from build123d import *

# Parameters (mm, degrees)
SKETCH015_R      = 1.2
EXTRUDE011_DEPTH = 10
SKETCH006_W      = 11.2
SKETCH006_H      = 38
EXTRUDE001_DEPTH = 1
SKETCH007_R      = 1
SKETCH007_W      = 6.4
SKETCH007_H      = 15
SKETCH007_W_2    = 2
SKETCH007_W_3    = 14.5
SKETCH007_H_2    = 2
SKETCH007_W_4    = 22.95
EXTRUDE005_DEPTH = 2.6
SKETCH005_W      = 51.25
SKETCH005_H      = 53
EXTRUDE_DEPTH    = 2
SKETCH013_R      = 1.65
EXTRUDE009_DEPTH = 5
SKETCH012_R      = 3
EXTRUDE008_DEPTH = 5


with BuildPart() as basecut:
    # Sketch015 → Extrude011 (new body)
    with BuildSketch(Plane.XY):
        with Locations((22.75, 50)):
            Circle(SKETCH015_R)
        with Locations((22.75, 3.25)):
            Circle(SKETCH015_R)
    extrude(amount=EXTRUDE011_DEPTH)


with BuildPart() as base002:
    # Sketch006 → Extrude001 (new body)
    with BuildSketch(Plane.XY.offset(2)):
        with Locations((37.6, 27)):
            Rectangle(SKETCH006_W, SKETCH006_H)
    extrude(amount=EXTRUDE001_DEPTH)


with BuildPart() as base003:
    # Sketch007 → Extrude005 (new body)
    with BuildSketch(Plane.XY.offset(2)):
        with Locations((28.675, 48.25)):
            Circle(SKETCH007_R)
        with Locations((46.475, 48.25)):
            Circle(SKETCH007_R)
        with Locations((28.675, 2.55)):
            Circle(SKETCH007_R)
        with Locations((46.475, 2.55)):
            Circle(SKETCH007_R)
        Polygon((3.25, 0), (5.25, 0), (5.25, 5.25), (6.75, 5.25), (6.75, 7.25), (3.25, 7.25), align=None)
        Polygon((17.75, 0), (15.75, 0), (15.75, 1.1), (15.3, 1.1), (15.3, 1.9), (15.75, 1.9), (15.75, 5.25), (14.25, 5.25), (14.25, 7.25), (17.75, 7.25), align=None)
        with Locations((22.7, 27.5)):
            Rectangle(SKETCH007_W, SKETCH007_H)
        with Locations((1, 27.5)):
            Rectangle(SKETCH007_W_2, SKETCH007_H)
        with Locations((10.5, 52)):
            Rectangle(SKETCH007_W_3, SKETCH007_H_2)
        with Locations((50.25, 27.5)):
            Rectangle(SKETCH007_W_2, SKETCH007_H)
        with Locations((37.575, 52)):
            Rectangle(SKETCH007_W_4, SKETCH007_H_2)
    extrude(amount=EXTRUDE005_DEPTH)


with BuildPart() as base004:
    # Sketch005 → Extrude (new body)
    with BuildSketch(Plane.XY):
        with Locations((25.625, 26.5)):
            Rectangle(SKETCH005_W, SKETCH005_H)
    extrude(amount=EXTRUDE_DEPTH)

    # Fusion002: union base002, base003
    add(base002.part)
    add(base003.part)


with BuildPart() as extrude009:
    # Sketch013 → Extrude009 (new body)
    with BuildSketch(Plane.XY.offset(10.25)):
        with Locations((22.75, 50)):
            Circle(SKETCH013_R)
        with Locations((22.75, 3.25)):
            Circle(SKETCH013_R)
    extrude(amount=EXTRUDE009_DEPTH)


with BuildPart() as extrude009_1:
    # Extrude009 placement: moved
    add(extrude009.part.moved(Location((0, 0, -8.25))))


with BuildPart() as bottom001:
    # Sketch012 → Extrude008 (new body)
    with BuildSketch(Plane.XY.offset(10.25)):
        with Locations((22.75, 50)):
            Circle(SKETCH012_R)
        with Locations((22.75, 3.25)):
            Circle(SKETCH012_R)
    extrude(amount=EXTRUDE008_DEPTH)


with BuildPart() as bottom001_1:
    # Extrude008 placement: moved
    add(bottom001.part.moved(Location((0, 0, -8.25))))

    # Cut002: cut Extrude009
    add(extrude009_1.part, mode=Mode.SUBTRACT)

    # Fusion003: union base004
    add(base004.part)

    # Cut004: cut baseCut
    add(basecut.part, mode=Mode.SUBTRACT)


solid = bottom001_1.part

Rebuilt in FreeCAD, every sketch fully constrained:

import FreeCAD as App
import Part
import Sketcher
from FreeCAD import Vector

doc = App.newDocument("Part")
params = doc.addObject("Spreadsheet::Sheet", "Params")
for row, (alias, value) in enumerate([
    ("sketch1_diameter", "2.4 mm"),
    ("pad1_length", "10 mm"),
    ("sketch2_height", "38 mm"),
    ("sketch2_width", "11.2 mm"),
    ("pad2_length", "1 mm"),
    ("sketch3_diameter", "2 mm"),
    ("sketch3_width", "2 mm"),
    ("sketch3_height", "15 mm"),
    ("sketch3_width2", "1.5 mm"),
    ("sketch3_width3", "6.4 mm"),
    ("pad3_length", "2.6 mm"),
    ("sketch4_height", "53 mm"),
    ("sketch4_width", "51.25 mm"),
    ("pad4_length", "2 mm"),
    ("sketch5_diameter", "3.3 mm"),
    ("pad5_length", "5 mm"),
    ("sketch6_diameter", "6 mm"),
    ("pad6_length", "5 mm"),
], start=1):
    params.set(f"A{row}", alias)
    params.set(f"B{row}", "=" + value)
    params.setAlias(f"B{row}", alias)

body = doc.addObject("PartDesign::Body", "Body")
body.AllowCompound = True

# Sketch on XY plane
sketch1 = body.newObject("Sketcher::SketchObject", "Sketch")
sketch1.AttachmentSupport = (doc.getObject("XY_Plane"), [""])
sketch1.MapMode = "FlatFace"
sketch1.addGeometry([
    Part.Circle(Vector(22.75, 50, 0), Vector(0, 0, 1), 1.2),
    Part.Circle(Vector(22.75, 3.25, 0), Vector(0, 0, 1), 1.2),
], False)
sketch1.addConstraint([
    Sketcher.Constraint("Equal", 0, 1),
    Sketcher.Constraint("Vertical", 0, 3, 1, 3),
    Sketcher.Constraint("Diameter", 0, 2.4),
    Sketcher.Constraint("DistanceY", -1, 1, 0, 3, 50.0),
    Sketcher.Constraint("DistanceX", -1, 1, 0, 3, 22.75),
    Sketcher.Constraint("DistanceY", -1, 1, 1, 3, 3.25),
])
sketch1.setExpression("Constraints[2]", "Params.sketch1_diameter")
pad1 = body.newObject("PartDesign::Pad", "Pad")
pad1.Profile = sketch1
pad1.setExpression("Length", "Params.pad1_length")
body2 = doc.addObject("PartDesign::Body", "Body001")

# Sketch on XY plane
sketch2 = body2.newObject("Sketcher::SketchObject", "Sketch001")
sketch2.AttachmentSupport = (doc.getObject("XY_Plane001"), [""])
sketch2.MapMode = "FlatFace"
sketch2.AttachmentOffset = App.Placement(Vector(0, 0, 2), App.Rotation())
sketch2.addGeometry([
    Part.LineSegment(Vector(32, 46, 0), Vector(32, 8, 0)),
    Part.LineSegment(Vector(32, 8, 0), Vector(43.2, 8, 0)),
    Part.LineSegment(Vector(43.2, 8, 0), Vector(43.2, 46, 0)),
    Part.LineSegment(Vector(43.2, 46, 0), Vector(32, 46, 0)),
], False)
sketch2.addConstraint([
    Sketcher.Constraint("Coincident", 0, 2, 1, 1),
    Sketcher.Constraint("Coincident", 1, 2, 2, 1),
    Sketcher.Constraint("Coincident", 2, 2, 3, 1),
    Sketcher.Constraint("Coincident", 3, 2, 0, 1),
    Sketcher.Constraint("Vertical", 0),
    Sketcher.Constraint("Horizontal", 1),
    Sketcher.Constraint("Vertical", 2),
    Sketcher.Constraint("Horizontal", 3),
    Sketcher.Constraint("DistanceY", 0, 2, 0, 1, 38.0),
    Sketcher.Constraint("DistanceX", 1, 1, 1, 2, 11.2),
    Sketcher.Constraint("DistanceX", -1, 1, 0, 2, 32.0),
    Sketcher.Constraint("DistanceY", -1, 1, 0, 2, 8.0),
])
sketch2.setExpression("Constraints[8]", "Params.sketch2_height")
sketch2.setExpression("Constraints[9]", "Params.sketch2_width")
pad2 = body2.newObject("PartDesign::Pad", "Pad001")
pad2.Profile = sketch2
pad2.setExpression("Length", "Params.pad2_length")
body3 = doc.addObject("PartDesign::Body", "Body002")
body3.AllowCompound = True

# Sketch on XY plane
sketch3 = body3.newObject("Sketcher::SketchObject", "Sketch002")
sketch3.AttachmentSupport = (doc.getObject("XY_Plane002"), [""])
sketch3.MapMode = "FlatFace"
sketch3.AttachmentOffset = App.Placement(Vector(0, 0, 2), App.Rotation())
sketch3.addGeometry([
    Part.Circle(Vector(28.675, 48.25, 0), Vector(0, 0, 1), 1),  # 0
    Part.Circle(Vector(46.475, 48.25, 0), Vector(0, 0, 1), 1),  # 1
    Part.Circle(Vector(28.675, 2.55, 0), Vector(0, 0, 1), 1),  # 2
    Part.Circle(Vector(46.475, 2.55, 0), Vector(0, 0, 1), 1),  # 3
    Part.LineSegment(Vector(3.25, 0, 0), Vector(5.25, 0, 0)),  # 4
    Part.LineSegment(Vector(5.25, 0, 0), Vector(5.25, 5.25, 0)),  # 5
    Part.LineSegment(Vector(5.25, 5.25, 0), Vector(6.75, 5.25, 0)),  # 6
    Part.LineSegment(Vector(6.75, 5.25, 0), Vector(6.75, 7.25, 0)),  # 7
    Part.LineSegment(Vector(6.75, 7.25, 0), Vector(3.25, 7.25, 0)),  # 8
    Part.LineSegment(Vector(3.25, 7.25, 0), Vector(3.25, 0, 0)),  # 9
    Part.LineSegment(Vector(15.75, 0, 0), Vector(17.75, 0, 0)),  # 10
    Part.LineSegment(Vector(17.75, 0, 0), Vector(17.75, 7.25, 0)),  # 11
    Part.LineSegment(Vector(17.75, 7.25, 0), Vector(14.25, 7.25, 0)),  # 12
    Part.LineSegment(Vector(14.25, 7.25, 0), Vector(14.25, 5.25, 0)),  # 13
    Part.LineSegment(Vector(14.25, 5.25, 0), Vector(15.75, 5.25, 0)),  # 14
    Part.LineSegment(Vector(15.75, 5.25, 0), Vector(15.75, 1.9, 0)),  # 15
    Part.LineSegment(Vector(15.75, 1.9, 0), Vector(15.3, 1.9, 0)),  # 16
    Part.LineSegment(Vector(15.3, 1.9, 0), Vector(15.3, 1.1, 0)),  # 17
    Part.LineSegment(Vector(15.3, 1.1, 0), Vector(15.75, 1.1, 0)),  # 18
    Part.LineSegment(Vector(15.75, 1.1, 0), Vector(15.75, 0, 0)),  # 19
    Part.LineSegment(Vector(19.5, 35, 0), Vector(19.5, 20, 0)),  # 20
    Part.LineSegment(Vector(19.5, 20, 0), Vector(25.9, 20, 0)),  # 21
    Part.LineSegment(Vector(25.9, 20, 0), Vector(25.9, 35, 0)),  # 22
    Part.LineSegment(Vector(25.9, 35, 0), Vector(19.5, 35, 0)),  # 23
    Part.LineSegment(Vector(0, 35, 0), Vector(0, 20, 0)),  # 24
    Part.LineSegment(Vector(0, 20, 0), Vector(2, 20, 0)),  # 25
    Part.LineSegment(Vector(2, 20, 0), Vector(2, 35, 0)),  # 26
    Part.LineSegment(Vector(2, 35, 0), Vector(0, 35, 0)),  # 27
    Part.LineSegment(Vector(3.25, 53, 0), Vector(3.25, 51, 0)),  # 28
    Part.LineSegment(Vector(3.25, 51, 0), Vector(17.75, 51, 0)),  # 29
    Part.LineSegment(Vector(17.75, 51, 0), Vector(17.75, 53, 0)),  # 30
    Part.LineSegment(Vector(17.75, 53, 0), Vector(3.25, 53, 0)),  # 31
    Part.LineSegment(Vector(49.25, 35, 0), Vector(49.25, 20, 0)),  # 32
    Part.LineSegment(Vector(49.25, 20, 0), Vector(51.25, 20, 0)),  # 33
    Part.LineSegment(Vector(51.25, 20, 0), Vector(51.25, 35, 0)),  # 34
    Part.LineSegment(Vector(51.25, 35, 0), Vector(49.25, 35, 0)),  # 35
    Part.LineSegment(Vector(26.1, 53, 0), Vector(26.1, 51, 0)),  # 36
    Part.LineSegment(Vector(26.1, 51, 0), Vector(49.05, 51, 0)),  # 37
    Part.LineSegment(Vector(49.05, 51, 0), Vector(49.05, 53, 0)),  # 38
    Part.LineSegment(Vector(49.05, 53, 0), Vector(26.1, 53, 0)),  # 39
], False)
sketch3.addConstraint([
    Sketcher.Constraint("Coincident", 4, 2, 5, 1),
    Sketcher.Constraint("Coincident", 5, 2, 6, 1),
    Sketcher.Constraint("Coincident", 6, 2, 7, 1),
    Sketcher.Constraint("Coincident", 7, 2, 8, 1),
    Sketcher.Constraint("Coincident", 8, 2, 9, 1),
    Sketcher.Constraint("Coincident", 9, 2, 4, 1),
    Sketcher.Constraint("Coincident", 10, 2, 11, 1),
    Sketcher.Constraint("Coincident", 11, 2, 12, 1),
    Sketcher.Constraint("Coincident", 12, 2, 13, 1),
    Sketcher.Constraint("Coincident", 13, 2, 14, 1),
    Sketcher.Constraint("Coincident", 14, 2, 15, 1),
    Sketcher.Constraint("Coincident", 15, 2, 16, 1),
    Sketcher.Constraint("Coincident", 16, 2, 17, 1),
    Sketcher.Constraint("Coincident", 17, 2, 18, 1),
    Sketcher.Constraint("Coincident", 18, 2, 19, 1),
    Sketcher.Constraint("Coincident", 19, 2, 10, 1),
    Sketcher.Constraint("Coincident", 20, 2, 21, 1),
    Sketcher.Constraint("Coincident", 21, 2, 22, 1),
    Sketcher.Constraint("Coincident", 22, 2, 23, 1),
    Sketcher.Constraint("Coincident", 23, 2, 20, 1),
    Sketcher.Constraint("Coincident", 24, 2, 25, 1),
    Sketcher.Constraint("Coincident", 25, 2, 26, 1),
    Sketcher.Constraint("Coincident", 26, 2, 27, 1),
    Sketcher.Constraint("Coincident", 27, 2, 24, 1),
    Sketcher.Constraint("Coincident", 28, 2, 29, 1),
    Sketcher.Constraint("Coincident", 29, 2, 30, 1),
    Sketcher.Constraint("Coincident", 30, 2, 31, 1),
    Sketcher.Constraint("Coincident", 31, 2, 28, 1),
    Sketcher.Constraint("Coincident", 32, 2, 33, 1),
    Sketcher.Constraint("Coincident", 33, 2, 34, 1),
    Sketcher.Constraint("Coincident", 34, 2, 35, 1),
    Sketcher.Constraint("Coincident", 35, 2, 32, 1),
    Sketcher.Constraint("Coincident", 36, 2, 37, 1),
    Sketcher.Constraint("Coincident", 37, 2, 38, 1),
    Sketcher.Constraint("Coincident", 38, 2, 39, 1),
    Sketcher.Constraint("Coincident", 39, 2, 36, 1),
    Sketcher.Constraint("Horizontal", 4),
    Sketcher.Constraint("Vertical", 5),
    Sketcher.Constraint("Horizontal", 6),
    Sketcher.Constraint("Vertical", 7),
    Sketcher.Constraint("Horizontal", 8),
    Sketcher.Constraint("Vertical", 9),
    Sketcher.Constraint("Horizontal", 10),
    Sketcher.Constraint("Vertical", 11),
    Sketcher.Constraint("Horizontal", 12),
    Sketcher.Constraint("Vertical", 13),
    Sketcher.Constraint("Horizontal", 14),
    Sketcher.Constraint("Vertical", 15),
    Sketcher.Constraint("Horizontal", 16),
    Sketcher.Constraint("Vertical", 17),
    Sketcher.Constraint("Horizontal", 18),
    Sketcher.Constraint("Vertical", 19),
    Sketcher.Constraint("Vertical", 20),
    Sketcher.Constraint("Horizontal", 21),
    Sketcher.Constraint("Vertical", 22),
    Sketcher.Constraint("Horizontal", 23),
    Sketcher.Constraint("Vertical", 24),
    Sketcher.Constraint("Horizontal", 25),
    Sketcher.Constraint("Vertical", 26),
    Sketcher.Constraint("Horizontal", 27),
    Sketcher.Constraint("Vertical", 28),
    Sketcher.Constraint("Horizontal", 29),
    Sketcher.Constraint("Vertical", 30),
    Sketcher.Constraint("Horizontal", 31),
    Sketcher.Constraint("Vertical", 32),
    Sketcher.Constraint("Horizontal", 33),
    Sketcher.Constraint("Vertical", 34),
    Sketcher.Constraint("Horizontal", 35),
    Sketcher.Constraint("Vertical", 36),
    Sketcher.Constraint("Horizontal", 37),
    Sketcher.Constraint("Vertical", 38),
    Sketcher.Constraint("Horizontal", 39),
    Sketcher.Constraint("Equal", 0, 1),
    Sketcher.Constraint("Equal", 1, 2),
    Sketcher.Constraint("Equal", 2, 3),
    Sketcher.Constraint("PointOnObject", 4, 2, -1),
    Sketcher.Constraint("PointOnObject", 10, 2, -1),
    Sketcher.Constraint("PointOnObject", 24, 2, -2),
    Sketcher.Constraint("Horizontal", 0, 3, 1, 3),
    Sketcher.Constraint("Horizontal", 2, 3, 3, 3),
    Sketcher.Constraint("Horizontal", 8, 2, 11, 2),
    Sketcher.Constraint("Horizontal", 6, 2, 13, 2),
    Sketcher.Constraint("Horizontal", 21, 2, 24, 2),
    Sketcher.Constraint("Horizontal", 23, 2, 26, 2),
    Sketcher.Constraint("Horizontal", 25, 2, 32, 2),
    Sketcher.Constraint("Horizontal", 27, 2, 34, 2),
    Sketcher.Constraint("Horizontal", 29, 2, 36, 2),
    Sketcher.Constraint("Horizontal", 31, 2, 38, 2),
    Sketcher.Constraint("Vertical", 0, 3, 2, 3),
    Sketcher.Constraint("Vertical", 1, 3, 3, 3),
    Sketcher.Constraint("Vertical", 15, 2, 18, 2),
    Sketcher.Constraint("Vertical", 9, 2, 28, 2),
    Sketcher.Constraint("Vertical", 11, 2, 29, 2),
    Sketcher.Constraint("Equal", 4, 10),
    Sketcher.Constraint("Equal", 8, 12),
    Sketcher.Constraint("Equal", 10, 25),
    Sketcher.Constraint("Equal", 27, 33),
    Sketcher.Constraint("Equal", 35, 7),
    Sketcher.Constraint("Equal", 13, 28),
    Sketcher.Constraint("Diameter", 0, 2.0),
    Sketcher.Constraint("DistanceX", 4, 1, 4, 2, 2.0),
    Sketcher.Constraint("DistanceY", 20, 2, 20, 1, 15.0),
    Sketcher.Constraint("DistanceX", 6, 1, 6, 2, 1.5),
    Sketcher.Constraint("DistanceX", 21, 1, 21, 2, 6.4),
    Sketcher.Constraint("DistanceX", 29, 1, 29, 2, 14.5),
    Sketcher.Constraint("DistanceY", 17, 2, 17, 1, 0.8),
    Sketcher.Constraint("DistanceY", 19, 2, 19, 1, 1.1),
    Sketcher.Constraint("DistanceY", -1, 1, 20, 2, 20.0),
    Sketcher.Constraint("DistanceY", -1, 1, 28, 2, 51.0),
    Sketcher.Constraint("DistanceY", 5, 2, 0, 3, 43.0),
    Sketcher.Constraint("DistanceX", 16, 2, 16, 1, 0.45),
    Sketcher.Constraint("DistanceX", 37, 1, 37, 2, 22.95),
    Sketcher.Constraint("DistanceY", 5, 1, 5, 2, 5.25),
    Sketcher.Constraint("DistanceX", -1, 1, 16, 2, 15.3),
    Sketcher.Constraint("DistanceX", -1, 1, 20, 2, 19.5),
    Sketcher.Constraint("DistanceX", -1, 1, 36, 2, 26.1),
    Sketcher.Constraint("DistanceX", 0, 3, 1, 3, 17.8),
    Sketcher.Constraint("DistanceY", 2, 3, 0, 3, 45.7),
    Sketcher.Constraint("DistanceX", 37, 2, 35, 2, 0.2),
    Sketcher.Constraint("DistanceX", -1, 1, 0, 3, 28.675),
])
sketch3.setExpression("Constraints[99]", "Params.sketch3_diameter")
sketch3.setExpression("Constraints[100]", "Params.sketch3_width")
sketch3.setExpression("Constraints[101]", "Params.sketch3_height")
sketch3.setExpression("Constraints[102]", "Params.sketch3_width2")
sketch3.setExpression("Constraints[103]", "Params.sketch3_width3")
pad3 = body3.newObject("PartDesign::Pad", "Pad002")
pad3.Profile = sketch3
pad3.setExpression("Length", "Params.pad3_length")
body4 = doc.addObject("PartDesign::Body", "Body003")

# Sketch on XY plane
sketch4 = body4.newObject("Sketcher::SketchObject", "Sketch003")
sketch4.AttachmentSupport = (doc.getObject("XY_Plane003"), [""])
sketch4.MapMode = "FlatFace"
sketch4.addGeometry([
    Part.LineSegment(Vector(0, 53, 0), Vector(0, 0, 0)),
    Part.LineSegment(Vector(0, 0, 0), Vector(51.25, 0, 0)),
    Part.LineSegment(Vector(51.25, 0, 0), Vector(51.25, 53, 0)),
    Part.LineSegment(Vector(51.25, 53, 0), Vector(0, 53, 0)),
], False)
sketch4.addConstraint([
    Sketcher.Constraint("Coincident", 0, 2, 1, 1),
    Sketcher.Constraint("Coincident", 1, 2, 2, 1),
    Sketcher.Constraint("Coincident", 2, 2, 3, 1),
    Sketcher.Constraint("Coincident", 3, 2, 0, 1),
    Sketcher.Constraint("Vertical", 0),
    Sketcher.Constraint("Horizontal", 1),
    Sketcher.Constraint("Vertical", 2),
    Sketcher.Constraint("Horizontal", 3),
    Sketcher.Constraint("Coincident", 0, 2, -1, 1),
    Sketcher.Constraint("DistanceY", 0, 2, 0, 1, 53.0),
    Sketcher.Constraint("DistanceX", 1, 1, 1, 2, 51.25),
])
sketch4.setExpression("Constraints[9]", "Params.sketch4_height")
sketch4.setExpression("Constraints[10]", "Params.sketch4_width")
pad4 = body4.newObject("PartDesign::Pad", "Pad003")
pad4.Profile = sketch4
pad4.setExpression("Length", "Params.pad4_length")
doc.recompute()

boolean = body4.newObject("PartDesign::Boolean", "Boolean")
boolean.Type = "Fuse"
boolean.addObjects([body2])
doc.recompute()

boolean2 = body4.newObject("PartDesign::Boolean", "Boolean001")
boolean2.Type = "Fuse"
boolean2.addObjects([body3])
body5 = doc.addObject("PartDesign::Body", "Body004")
body5.AllowCompound = True

# Sketch on XY plane
sketch5 = body5.newObject("Sketcher::SketchObject", "Sketch004")
sketch5.AttachmentSupport = (doc.getObject("XY_Plane004"), [""])
sketch5.MapMode = "FlatFace"
sketch5.AttachmentOffset = App.Placement(Vector(0, 0, 10.25), App.Rotation())
sketch5.addGeometry([
    Part.Circle(Vector(22.75, 50, 0), Vector(0, 0, 1), 1.65),
    Part.Circle(Vector(22.75, 3.25, 0), Vector(0, 0, 1), 1.65),
], False)
sketch5.addConstraint([
    Sketcher.Constraint("Equal", 0, 1),
    Sketcher.Constraint("Vertical", 0, 3, 1, 3),
    Sketcher.Constraint("Diameter", 0, 3.3),
    Sketcher.Constraint("DistanceY", -1, 1, 0, 3, 50.0),
    Sketcher.Constraint("DistanceX", -1, 1, 0, 3, 22.75),
    Sketcher.Constraint("DistanceY", -1, 1, 1, 3, 3.25),
])
sketch5.setExpression("Constraints[2]", "Params.sketch5_diameter")
pad5 = body5.newObject("PartDesign::Pad", "Pad004")
pad5.Profile = sketch5
pad5.setExpression("Length", "Params.pad5_length")
body6 = doc.addObject("PartDesign::Body", "Body005")
body6.AllowCompound = True
doc.recompute()

body5.Placement = App.Placement(Vector(0, 0, -8.25), App.Rotation(Vector(0, 0, 1), 0))
boolean3 = body6.newObject("PartDesign::Boolean", "Boolean002")
boolean3.Type = "Fuse"
boolean3.addObjects([body5])
body7 = doc.addObject("PartDesign::Body", "Body006")
body7.AllowCompound = True

# Sketch on XY plane
sketch6 = body7.newObject("Sketcher::SketchObject", "Sketch005")
sketch6.AttachmentSupport = (doc.getObject("XY_Plane006"), [""])
sketch6.MapMode = "FlatFace"
sketch6.AttachmentOffset = App.Placement(Vector(0, 0, 10.25), App.Rotation())
sketch6.addGeometry([
    Part.Circle(Vector(22.75, 50, 0), Vector(0, 0, 1), 3),
    Part.Circle(Vector(22.75, 3.25, 0), Vector(0, 0, 1), 3),
], False)
sketch6.addConstraint([
    Sketcher.Constraint("Equal", 0, 1),
    Sketcher.Constraint("Vertical", 0, 3, 1, 3),
    Sketcher.Constraint("Diameter", 0, 6.0),
    Sketcher.Constraint("DistanceY", -1, 1, 0, 3, 50.0),
    Sketcher.Constraint("DistanceX", -1, 1, 0, 3, 22.75),
    Sketcher.Constraint("DistanceY", -1, 1, 1, 3, 3.25),
])
sketch6.setExpression("Constraints[2]", "Params.sketch6_diameter")
pad6 = body7.newObject("PartDesign::Pad", "Pad005")
pad6.Profile = sketch6
pad6.setExpression("Length", "Params.pad6_length")
body8 = doc.addObject("PartDesign::Body", "Body007")
body8.AllowCompound = True
doc.recompute()

body7.Placement = App.Placement(Vector(0, 0, -8.25), App.Rotation(Vector(0, 0, 1), 0))
boolean4 = body8.newObject("PartDesign::Boolean", "Boolean003")
boolean4.Type = "Fuse"
boolean4.addObjects([body7])
doc.recompute()

boolean5 = body8.newObject("PartDesign::Boolean", "Boolean004")
boolean5.Type = "Cut"
boolean5.addObjects([body6])
doc.recompute()

boolean6 = body8.newObject("PartDesign::Boolean", "Boolean005")
boolean6.Type = "Fuse"
boolean6.addObjects([body4])
doc.recompute()

boolean7 = body8.newObject("PartDesign::Boolean", "Boolean006")
boolean7.Type = "Cut"
boolean7.addObjects([body])

doc.recompute()
